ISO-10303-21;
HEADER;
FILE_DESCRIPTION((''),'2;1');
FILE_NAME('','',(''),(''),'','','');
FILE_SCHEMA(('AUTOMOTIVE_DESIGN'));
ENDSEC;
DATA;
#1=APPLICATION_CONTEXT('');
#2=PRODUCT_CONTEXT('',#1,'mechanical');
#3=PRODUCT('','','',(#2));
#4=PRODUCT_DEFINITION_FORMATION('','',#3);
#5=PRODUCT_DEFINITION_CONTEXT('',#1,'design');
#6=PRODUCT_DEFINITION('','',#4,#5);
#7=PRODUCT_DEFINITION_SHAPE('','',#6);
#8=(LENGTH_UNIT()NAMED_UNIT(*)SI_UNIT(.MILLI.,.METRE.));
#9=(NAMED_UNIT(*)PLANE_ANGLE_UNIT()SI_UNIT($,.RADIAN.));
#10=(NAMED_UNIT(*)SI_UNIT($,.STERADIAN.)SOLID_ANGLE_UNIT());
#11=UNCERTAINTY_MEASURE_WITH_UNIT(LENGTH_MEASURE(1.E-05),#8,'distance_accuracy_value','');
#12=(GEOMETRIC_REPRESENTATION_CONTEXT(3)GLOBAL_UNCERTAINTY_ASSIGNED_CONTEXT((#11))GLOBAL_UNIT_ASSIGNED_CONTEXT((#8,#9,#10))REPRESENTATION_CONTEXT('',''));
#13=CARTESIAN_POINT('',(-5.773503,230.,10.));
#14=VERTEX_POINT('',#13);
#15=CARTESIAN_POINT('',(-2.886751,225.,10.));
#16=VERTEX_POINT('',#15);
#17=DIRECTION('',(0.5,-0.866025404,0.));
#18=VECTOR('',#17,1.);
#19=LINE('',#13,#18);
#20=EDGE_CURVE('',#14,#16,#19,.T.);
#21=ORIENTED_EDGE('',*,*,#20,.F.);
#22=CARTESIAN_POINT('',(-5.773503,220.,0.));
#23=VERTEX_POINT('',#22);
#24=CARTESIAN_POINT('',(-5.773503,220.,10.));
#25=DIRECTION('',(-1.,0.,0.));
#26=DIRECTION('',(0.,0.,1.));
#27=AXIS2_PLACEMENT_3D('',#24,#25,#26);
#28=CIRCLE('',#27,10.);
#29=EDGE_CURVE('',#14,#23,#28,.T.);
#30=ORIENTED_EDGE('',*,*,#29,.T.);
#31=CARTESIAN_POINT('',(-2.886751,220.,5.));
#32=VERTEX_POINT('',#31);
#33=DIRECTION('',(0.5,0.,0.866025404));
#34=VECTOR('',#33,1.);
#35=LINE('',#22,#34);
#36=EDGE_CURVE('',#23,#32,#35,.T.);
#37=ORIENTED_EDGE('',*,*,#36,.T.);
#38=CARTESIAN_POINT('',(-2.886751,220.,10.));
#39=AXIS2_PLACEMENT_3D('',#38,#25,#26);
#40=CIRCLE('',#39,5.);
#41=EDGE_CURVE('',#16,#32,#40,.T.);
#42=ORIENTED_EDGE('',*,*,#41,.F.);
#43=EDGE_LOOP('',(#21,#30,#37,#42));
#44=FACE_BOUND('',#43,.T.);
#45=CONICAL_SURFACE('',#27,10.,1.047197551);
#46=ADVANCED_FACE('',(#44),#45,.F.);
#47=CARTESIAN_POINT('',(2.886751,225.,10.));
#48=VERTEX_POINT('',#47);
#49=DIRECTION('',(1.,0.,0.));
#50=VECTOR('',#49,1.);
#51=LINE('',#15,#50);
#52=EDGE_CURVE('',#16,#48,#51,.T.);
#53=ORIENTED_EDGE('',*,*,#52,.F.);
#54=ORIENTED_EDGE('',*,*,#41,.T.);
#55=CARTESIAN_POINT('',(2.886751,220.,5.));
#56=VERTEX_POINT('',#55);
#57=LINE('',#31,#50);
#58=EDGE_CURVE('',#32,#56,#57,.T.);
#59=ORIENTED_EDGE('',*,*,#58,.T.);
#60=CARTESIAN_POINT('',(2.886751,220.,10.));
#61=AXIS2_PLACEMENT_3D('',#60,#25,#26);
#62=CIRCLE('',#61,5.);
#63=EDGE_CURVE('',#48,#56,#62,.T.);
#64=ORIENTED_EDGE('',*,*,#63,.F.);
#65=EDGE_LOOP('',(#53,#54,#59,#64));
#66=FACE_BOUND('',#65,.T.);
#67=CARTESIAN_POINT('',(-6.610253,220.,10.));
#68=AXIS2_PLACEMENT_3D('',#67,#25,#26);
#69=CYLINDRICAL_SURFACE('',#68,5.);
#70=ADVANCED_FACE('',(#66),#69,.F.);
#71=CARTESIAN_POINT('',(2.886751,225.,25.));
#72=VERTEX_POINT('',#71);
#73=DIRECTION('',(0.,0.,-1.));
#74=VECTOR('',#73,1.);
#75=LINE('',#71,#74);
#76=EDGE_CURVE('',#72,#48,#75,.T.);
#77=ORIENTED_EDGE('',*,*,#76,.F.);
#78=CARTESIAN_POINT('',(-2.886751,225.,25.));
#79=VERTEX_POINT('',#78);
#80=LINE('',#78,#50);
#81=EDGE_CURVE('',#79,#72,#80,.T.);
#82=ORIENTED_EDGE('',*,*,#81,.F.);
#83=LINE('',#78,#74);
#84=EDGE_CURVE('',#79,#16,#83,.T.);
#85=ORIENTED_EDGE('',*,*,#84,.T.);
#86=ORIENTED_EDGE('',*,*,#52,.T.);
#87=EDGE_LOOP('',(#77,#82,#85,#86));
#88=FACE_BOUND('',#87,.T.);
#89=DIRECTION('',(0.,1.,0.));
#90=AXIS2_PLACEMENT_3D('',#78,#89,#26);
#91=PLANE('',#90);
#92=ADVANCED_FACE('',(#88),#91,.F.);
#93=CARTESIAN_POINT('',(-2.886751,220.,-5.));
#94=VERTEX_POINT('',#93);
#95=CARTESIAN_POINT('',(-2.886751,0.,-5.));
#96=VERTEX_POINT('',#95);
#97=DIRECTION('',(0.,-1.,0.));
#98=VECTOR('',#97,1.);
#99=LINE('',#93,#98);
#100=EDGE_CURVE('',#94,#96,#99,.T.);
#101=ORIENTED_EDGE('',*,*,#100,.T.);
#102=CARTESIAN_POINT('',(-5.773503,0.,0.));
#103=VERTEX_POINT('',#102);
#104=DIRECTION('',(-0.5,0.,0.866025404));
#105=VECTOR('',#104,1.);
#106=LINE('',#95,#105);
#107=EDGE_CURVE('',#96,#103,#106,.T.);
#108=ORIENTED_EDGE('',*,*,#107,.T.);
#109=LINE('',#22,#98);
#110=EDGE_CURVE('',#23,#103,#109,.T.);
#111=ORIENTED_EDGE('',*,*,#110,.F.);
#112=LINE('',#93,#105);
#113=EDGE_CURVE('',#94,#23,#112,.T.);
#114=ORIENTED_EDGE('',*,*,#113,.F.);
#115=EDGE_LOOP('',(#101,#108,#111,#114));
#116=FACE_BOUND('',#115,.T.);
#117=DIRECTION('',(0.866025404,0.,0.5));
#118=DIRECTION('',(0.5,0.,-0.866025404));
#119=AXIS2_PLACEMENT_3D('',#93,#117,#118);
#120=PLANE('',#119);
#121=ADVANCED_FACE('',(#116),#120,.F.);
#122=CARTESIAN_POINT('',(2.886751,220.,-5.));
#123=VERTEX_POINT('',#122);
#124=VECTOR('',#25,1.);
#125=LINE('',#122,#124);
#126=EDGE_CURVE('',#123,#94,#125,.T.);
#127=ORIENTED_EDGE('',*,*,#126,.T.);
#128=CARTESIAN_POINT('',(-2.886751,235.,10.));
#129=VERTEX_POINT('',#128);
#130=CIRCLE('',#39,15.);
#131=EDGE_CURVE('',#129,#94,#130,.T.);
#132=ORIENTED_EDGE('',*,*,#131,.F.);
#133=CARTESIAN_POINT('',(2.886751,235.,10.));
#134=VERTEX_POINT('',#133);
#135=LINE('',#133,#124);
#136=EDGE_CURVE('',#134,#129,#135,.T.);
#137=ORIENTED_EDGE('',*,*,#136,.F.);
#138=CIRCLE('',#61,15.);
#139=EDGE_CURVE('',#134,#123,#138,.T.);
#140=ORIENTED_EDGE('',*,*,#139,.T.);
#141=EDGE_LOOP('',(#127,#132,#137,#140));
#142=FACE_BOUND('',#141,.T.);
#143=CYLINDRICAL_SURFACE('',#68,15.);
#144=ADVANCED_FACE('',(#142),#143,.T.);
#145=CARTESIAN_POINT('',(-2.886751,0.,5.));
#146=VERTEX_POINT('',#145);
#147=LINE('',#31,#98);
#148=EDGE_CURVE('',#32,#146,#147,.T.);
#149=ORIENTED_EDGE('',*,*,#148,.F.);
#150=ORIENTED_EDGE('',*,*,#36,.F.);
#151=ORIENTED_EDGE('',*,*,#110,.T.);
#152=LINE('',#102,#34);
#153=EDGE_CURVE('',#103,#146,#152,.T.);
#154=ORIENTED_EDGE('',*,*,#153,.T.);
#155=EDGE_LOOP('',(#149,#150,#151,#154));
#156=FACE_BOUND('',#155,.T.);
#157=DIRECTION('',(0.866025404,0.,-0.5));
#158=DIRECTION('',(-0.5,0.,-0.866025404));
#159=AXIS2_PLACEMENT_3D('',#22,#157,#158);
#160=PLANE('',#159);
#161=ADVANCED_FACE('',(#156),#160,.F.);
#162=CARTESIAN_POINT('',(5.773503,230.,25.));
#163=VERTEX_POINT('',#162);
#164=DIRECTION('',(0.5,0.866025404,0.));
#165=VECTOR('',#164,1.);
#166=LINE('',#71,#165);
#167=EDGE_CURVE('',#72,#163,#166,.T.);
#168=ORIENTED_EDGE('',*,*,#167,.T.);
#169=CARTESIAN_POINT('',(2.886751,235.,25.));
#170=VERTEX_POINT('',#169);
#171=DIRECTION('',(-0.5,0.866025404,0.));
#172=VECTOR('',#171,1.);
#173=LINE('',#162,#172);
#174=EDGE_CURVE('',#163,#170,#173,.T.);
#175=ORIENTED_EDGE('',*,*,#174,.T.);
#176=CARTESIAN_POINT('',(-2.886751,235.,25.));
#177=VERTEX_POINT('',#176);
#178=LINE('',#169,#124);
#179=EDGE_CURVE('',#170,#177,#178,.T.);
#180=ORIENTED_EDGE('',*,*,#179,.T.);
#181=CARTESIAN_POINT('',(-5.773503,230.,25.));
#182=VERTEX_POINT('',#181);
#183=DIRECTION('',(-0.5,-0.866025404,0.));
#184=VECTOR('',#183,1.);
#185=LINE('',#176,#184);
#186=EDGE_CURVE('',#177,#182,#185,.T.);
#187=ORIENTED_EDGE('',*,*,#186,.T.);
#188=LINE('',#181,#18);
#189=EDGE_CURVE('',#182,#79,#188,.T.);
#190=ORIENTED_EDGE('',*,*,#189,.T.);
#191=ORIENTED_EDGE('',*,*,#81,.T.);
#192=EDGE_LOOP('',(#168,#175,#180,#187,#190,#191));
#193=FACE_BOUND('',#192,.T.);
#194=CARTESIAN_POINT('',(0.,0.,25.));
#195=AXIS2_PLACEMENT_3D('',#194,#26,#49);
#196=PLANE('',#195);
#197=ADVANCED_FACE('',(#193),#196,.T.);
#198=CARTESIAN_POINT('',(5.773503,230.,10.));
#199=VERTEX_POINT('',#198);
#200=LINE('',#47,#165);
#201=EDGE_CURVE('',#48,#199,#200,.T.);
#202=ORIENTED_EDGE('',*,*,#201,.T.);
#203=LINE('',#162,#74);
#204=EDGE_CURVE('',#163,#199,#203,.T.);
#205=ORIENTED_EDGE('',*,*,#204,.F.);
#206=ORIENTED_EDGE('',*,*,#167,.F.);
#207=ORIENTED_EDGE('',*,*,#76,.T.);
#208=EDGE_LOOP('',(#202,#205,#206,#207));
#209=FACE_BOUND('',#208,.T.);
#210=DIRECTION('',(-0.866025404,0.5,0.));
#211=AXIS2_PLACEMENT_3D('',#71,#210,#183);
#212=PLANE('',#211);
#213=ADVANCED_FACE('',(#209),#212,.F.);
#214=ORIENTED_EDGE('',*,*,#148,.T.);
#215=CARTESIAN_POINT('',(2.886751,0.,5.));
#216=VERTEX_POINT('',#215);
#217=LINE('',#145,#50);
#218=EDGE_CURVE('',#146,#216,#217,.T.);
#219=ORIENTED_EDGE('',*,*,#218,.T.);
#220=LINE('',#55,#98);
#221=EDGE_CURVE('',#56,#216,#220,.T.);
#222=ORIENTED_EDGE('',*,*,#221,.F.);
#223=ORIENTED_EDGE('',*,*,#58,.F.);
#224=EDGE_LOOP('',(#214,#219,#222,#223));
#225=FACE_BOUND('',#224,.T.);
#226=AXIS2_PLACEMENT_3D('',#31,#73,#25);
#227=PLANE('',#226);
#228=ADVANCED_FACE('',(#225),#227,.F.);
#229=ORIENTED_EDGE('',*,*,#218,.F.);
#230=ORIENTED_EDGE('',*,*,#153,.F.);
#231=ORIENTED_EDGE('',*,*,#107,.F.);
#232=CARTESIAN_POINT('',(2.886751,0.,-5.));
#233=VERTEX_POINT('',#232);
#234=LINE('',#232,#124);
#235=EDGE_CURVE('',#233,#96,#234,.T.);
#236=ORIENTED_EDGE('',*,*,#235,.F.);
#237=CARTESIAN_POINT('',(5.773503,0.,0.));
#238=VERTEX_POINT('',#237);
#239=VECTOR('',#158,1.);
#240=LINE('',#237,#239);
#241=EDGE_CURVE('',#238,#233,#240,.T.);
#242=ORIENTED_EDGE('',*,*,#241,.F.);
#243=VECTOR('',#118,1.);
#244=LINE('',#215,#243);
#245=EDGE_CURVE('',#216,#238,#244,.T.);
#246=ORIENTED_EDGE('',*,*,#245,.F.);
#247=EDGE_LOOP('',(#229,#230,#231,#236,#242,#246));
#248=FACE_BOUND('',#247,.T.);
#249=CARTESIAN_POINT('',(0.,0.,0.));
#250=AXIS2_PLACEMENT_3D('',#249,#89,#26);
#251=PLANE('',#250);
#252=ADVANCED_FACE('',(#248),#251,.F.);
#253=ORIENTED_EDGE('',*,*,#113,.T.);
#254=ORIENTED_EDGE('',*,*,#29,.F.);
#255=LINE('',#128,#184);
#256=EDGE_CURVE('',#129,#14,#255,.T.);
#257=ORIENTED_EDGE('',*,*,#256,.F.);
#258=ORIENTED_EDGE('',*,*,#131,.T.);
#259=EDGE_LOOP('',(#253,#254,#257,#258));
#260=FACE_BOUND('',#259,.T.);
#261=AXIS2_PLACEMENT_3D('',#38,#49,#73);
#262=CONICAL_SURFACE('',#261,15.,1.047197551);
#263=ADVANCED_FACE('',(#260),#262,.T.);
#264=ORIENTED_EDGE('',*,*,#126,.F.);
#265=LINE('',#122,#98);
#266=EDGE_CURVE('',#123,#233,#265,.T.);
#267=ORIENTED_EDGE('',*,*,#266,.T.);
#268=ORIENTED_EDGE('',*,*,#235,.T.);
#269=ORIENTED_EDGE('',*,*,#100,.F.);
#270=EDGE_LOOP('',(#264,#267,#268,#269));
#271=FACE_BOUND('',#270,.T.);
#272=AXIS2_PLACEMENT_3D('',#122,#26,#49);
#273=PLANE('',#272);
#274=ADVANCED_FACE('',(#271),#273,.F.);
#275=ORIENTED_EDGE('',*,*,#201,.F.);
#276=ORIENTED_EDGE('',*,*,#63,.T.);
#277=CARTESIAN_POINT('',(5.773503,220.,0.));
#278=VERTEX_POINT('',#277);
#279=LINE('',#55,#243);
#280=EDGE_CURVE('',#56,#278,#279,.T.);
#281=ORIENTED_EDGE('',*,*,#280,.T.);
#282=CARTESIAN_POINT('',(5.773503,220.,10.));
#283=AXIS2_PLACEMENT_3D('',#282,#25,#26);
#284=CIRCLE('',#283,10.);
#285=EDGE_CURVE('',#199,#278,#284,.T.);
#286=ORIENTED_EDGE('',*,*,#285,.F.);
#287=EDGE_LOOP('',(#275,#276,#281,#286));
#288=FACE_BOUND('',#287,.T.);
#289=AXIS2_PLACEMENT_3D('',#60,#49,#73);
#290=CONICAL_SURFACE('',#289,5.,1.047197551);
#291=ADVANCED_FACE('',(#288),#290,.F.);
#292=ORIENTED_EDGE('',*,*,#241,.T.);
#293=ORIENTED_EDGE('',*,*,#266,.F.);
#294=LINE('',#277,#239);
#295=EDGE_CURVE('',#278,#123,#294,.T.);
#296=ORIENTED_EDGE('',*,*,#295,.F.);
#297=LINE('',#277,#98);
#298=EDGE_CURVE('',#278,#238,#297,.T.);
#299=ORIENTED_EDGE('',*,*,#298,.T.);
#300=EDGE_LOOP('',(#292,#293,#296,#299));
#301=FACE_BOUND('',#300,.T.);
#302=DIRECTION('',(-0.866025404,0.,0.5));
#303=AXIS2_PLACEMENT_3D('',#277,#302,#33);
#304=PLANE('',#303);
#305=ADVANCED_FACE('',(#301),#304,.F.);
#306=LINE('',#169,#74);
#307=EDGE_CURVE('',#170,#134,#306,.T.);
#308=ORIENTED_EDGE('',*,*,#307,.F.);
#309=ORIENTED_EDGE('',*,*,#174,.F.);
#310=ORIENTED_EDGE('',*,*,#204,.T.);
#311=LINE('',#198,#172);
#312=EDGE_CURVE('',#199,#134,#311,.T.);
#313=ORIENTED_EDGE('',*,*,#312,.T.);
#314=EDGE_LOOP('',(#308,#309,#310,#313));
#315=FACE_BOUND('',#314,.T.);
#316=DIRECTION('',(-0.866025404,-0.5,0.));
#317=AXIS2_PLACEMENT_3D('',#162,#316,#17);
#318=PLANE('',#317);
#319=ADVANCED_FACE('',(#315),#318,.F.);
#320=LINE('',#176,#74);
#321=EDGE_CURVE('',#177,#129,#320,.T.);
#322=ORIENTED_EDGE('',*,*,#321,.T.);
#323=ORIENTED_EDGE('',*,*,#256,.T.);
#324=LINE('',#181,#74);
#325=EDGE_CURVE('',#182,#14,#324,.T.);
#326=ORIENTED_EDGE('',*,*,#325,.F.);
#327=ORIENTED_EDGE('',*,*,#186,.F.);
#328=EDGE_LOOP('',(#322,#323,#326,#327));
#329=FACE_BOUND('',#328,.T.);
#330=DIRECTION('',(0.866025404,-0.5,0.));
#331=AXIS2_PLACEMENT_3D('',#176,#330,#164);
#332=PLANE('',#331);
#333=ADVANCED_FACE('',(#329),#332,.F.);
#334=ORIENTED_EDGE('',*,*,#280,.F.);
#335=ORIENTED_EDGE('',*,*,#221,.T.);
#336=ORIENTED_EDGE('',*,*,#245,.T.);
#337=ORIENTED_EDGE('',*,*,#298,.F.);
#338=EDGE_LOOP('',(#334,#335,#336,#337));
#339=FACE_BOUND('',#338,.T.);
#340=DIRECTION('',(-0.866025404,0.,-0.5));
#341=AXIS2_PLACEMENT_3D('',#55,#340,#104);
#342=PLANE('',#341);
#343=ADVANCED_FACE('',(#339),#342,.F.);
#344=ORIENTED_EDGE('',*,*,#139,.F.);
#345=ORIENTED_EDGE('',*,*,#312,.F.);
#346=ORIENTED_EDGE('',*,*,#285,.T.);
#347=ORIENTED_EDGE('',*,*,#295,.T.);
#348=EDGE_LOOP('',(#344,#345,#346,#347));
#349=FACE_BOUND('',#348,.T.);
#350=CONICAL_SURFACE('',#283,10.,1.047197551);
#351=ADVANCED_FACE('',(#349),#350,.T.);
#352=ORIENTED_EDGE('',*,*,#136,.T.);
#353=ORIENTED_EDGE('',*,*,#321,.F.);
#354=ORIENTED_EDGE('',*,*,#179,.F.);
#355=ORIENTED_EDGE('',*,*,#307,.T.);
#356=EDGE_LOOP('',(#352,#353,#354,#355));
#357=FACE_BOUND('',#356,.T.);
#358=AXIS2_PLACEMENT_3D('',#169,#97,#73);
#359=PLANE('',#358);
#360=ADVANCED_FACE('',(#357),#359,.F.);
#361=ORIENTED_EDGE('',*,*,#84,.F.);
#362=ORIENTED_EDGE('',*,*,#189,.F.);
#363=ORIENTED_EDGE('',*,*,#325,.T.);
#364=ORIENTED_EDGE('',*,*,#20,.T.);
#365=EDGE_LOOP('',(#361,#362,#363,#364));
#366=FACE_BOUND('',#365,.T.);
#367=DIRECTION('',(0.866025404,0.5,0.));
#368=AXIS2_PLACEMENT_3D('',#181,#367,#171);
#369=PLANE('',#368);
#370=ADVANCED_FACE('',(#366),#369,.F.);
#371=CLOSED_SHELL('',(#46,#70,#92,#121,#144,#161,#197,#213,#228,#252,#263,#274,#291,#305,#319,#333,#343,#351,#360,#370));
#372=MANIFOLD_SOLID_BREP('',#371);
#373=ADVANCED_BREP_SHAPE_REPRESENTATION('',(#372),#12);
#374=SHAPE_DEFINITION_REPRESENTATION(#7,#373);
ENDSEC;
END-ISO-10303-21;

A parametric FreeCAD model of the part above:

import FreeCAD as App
import Part
import Sketcher

V = App.Vector
Q = App.Units.Quantity


def add_polygon(sketch, points):
    """Adds a closed chain of lines whose ends are joined by coincident constraints."""
    first, n = sketch.GeometryCount, len(points)
    for a, b in zip(points, points[1:] + points[:1]):
        sketch.addGeometry(Part.LineSegment(App.Vector(*a, 0), App.Vector(*b, 0)), False)
    for i in range(n):
        sketch.addConstraint(Sketcher.Constraint("Coincident", first + i, 2, first + (i + 1) % n, 1))

doc = App.newDocument("Part")
body = doc.addObject("PartDesign::Body", "Body")

sketch1 = body.newObject("Sketcher::SketchObject", "Sketch")
sketch1.AttachmentSupport = (doc.getObject("XZ_Plane"), [""])
sketch1.MapMode = "FlatFace"
add_polygon(sketch1, [(6, 0), (3, -5), (-3, -5), (-6, 0), (-3, 5), (3, 5)])
sketch1.addConstraint([
    Sketcher.Constraint("Horizontal", 1),
    Sketcher.Constraint("Horizontal", 4),
    Sketcher.Constraint("Symmetric", 0, 2, 3, 2, -1, 1),
    Sketcher.Constraint("Symmetric", 2, 2, 5, 2, -1, 1),
    Sketcher.Constraint("PointOnObject", 2, 2, -1),
    Sketcher.Constraint("Parallel", 2, 5),
    Sketcher.Constraint("Vertical", 1, 2, 3, 2),
    Sketcher.Constraint("Angle", 0, Q("-120 deg")),
    Sketcher.Constraint("DistanceY", 0, 2, -1, 1, 5.0),
    Sketcher.Constraint("DistanceX", 1, 2, 1, 1, 5.773503),
])
pad1 = body.newObject("PartDesign::Pad", "Pad")
pad1.Profile = sketch1
pad1.Length = 220
pad1.Reversed = True

sketch2 = body.newObject("Sketcher::SketchObject", "Sketch001")
sketch2.AttachmentSupport = (doc.getObject("XZ_Plane"), [""])
sketch2.MapMode = "FlatFace"
sketch2.AttachmentOffset = App.Placement(V(0, 0, -220), App.Rotation())
add_polygon(sketch2, [(-3, 5), (3, 5), (6, 0), (3, -5), (-3, -5), (-6, 0)])
sketch2.addGeometry(Part.LineSegment(V(-6, 10, 0), V(6, 10, 0)), True)
sketch2.addConstraint([
    Sketcher.Constraint("Horizontal", 0),
    Sketcher.Constraint("Horizontal", 3),
    Sketcher.Constraint("Horizontal", 6),
    Sketcher.Constraint("Symmetric", 0, 2, 3, 2, -1, 1),
    Sketcher.Constraint("Symmetric", 1, 2, 4, 2, -1, 1),
    Sketcher.Constraint("PointOnObject", 1, 2, -1),
    Sketcher.Constraint("Parallel", 2, 5),
    Sketcher.Constraint("Vertical", 0, 2, 2, 2),
    Sketcher.Constraint("Vertical", 4, 2, 6, 1),
    Sketcher.Constraint("Vertical", 1, 2, 6, 2),
    Sketcher.Constraint("Angle", 1, Q("-60 deg")),
    Sketcher.Constraint("DistanceY", -1, 1, 0, 2, 5.0),
    Sketcher.Constraint("DistanceY", -1, 1, 6, 1, 10.0),
    Sketcher.Constraint("DistanceX", 0, 1, 0, 2, 5.773503),
])
revolution = body.newObject("PartDesign::Revolution", "Revolution")
revolution.Profile = sketch2
revolution.ReferenceAxis = (sketch2, ["Axis0"])
revolution.Angle = 90

sketch3 = body.newObject("Sketcher::SketchObject", "Sketch002")
sketch3.AttachmentSupport = (doc.getObject("XY_Plane"), [""])
sketch3.MapMode = "FlatFace"
sketch3.AttachmentOffset = App.Placement(V(0, 0, 10), App.Rotation())
add_polygon(sketch3, [(-6, 230), (-3, 225), (3, 225), (6, 230), (3, 235), (-3, 235)])
sketch3.addConstraint([
    Sketcher.Constraint("Horizontal", 1),
    Sketcher.Constraint("Horizontal", 4),
    Sketcher.Constraint("Symmetric", 2, 2, 5, 2, -2),
    Sketcher.Constraint("Parallel", 0, 3),
    Sketcher.Constraint("Parallel", 2, 5),
    Sketcher.Constraint("Vertical", 1, 2, 3, 2),
    Sketcher.Constraint("Vertical", 0, 2, 4, 2),
    Sketcher.Constraint("Angle", 0, Q("-60 deg")),
    Sketcher.Constraint("DistanceY", -1, 1, 0, 2, 225.0),
    Sketcher.Constraint("DistanceY", -1, 1, 2, 2, 230.0),
    Sketcher.Constraint("DistanceX", 1, 1, 1, 2, 5.773503),
])
pad2 = body.newObject("PartDesign::Pad", "Pad001")
pad2.Profile = sketch3
pad2.Length = 15

doc.recompute()
